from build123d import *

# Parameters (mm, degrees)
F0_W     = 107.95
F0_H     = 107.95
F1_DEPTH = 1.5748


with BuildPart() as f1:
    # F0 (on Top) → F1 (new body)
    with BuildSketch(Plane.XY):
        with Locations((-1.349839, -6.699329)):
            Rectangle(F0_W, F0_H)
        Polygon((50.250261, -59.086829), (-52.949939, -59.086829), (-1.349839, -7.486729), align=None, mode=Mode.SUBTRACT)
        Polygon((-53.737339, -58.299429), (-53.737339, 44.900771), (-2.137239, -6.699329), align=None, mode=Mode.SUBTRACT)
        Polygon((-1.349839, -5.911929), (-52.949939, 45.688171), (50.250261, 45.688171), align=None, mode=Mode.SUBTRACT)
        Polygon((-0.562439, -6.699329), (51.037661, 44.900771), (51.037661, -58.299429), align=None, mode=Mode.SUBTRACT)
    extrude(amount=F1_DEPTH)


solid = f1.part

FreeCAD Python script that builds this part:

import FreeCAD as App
import Part
import Sketcher

V = App.Vector
Q = App.Units.Quantity

doc = App.newDocument("Part")
params = doc.addObject("Spreadsheet::Sheet", "Params")
for row, (alias, value) in enumerate([
    ("sketch1_width", "4.25 in"),
    ("sketch1_width2", "4.063 in"),
    ("pad1_length", "0.062 in"),
], start=1):
    params.set(f"A{row}", alias)
    params.set(f"B{row}", "=" + value)
    params.setAlias(f"B{row}", alias)

body = doc.addObject("PartDesign::Body", "Body")

sketch1 = body.newObject("Sketcher::SketchObject", "Sketch")
sketch1.AttachmentSupport = (doc.getObject("XY_Plane"), [""])
sketch1.MapMode = "FlatFace"
sketch1.addGeometry([
    Part.LineSegment(V(-55.324839, 47.275671, 0), V(-55.324839, -60.674329, 0)),
    Part.LineSegment(V(-55.324839, -60.674329, 0), V(52.625161, -60.674329, 0)),
    Part.LineSegment(V(52.625161, -60.674329, 0), V(52.625161, 47.275671, 0)),
    Part.LineSegment(V(52.625161, 47.275671, 0), V(-55.324839, 47.275671, 0)),
    Part.LineSegment(V(-1.349839, -7.486729, 0), V(50.250261, -59.086829, 0)),
    Part.LineSegment(V(50.250261, -59.086829, 0), V(-52.949939, -59.086829, 0)),
    Part.LineSegment(V(-52.949939, -59.086829, 0), V(-1.349839, -7.486729, 0)),
    Part.LineSegment(V(-2.137239, -6.699329, 0), V(-53.737339, -58.299429, 0)),
    Part.LineSegment(V(-53.737339, -58.299429, 0), V(-53.737339, 44.900771, 0)),
    Part.LineSegment(V(-53.737339, 44.900771, 0), V(-2.137239, -6.699329, 0)),
    Part.LineSegment(V(51.037661, -58.299429, 0), V(-0.562439, -6.699329, 0)),
    Part.LineSegment(V(-0.562439, -6.699329, 0), V(51.037661, 44.900771, 0)),
    Part.LineSegment(V(51.037661, 44.900771, 0), V(51.037661, -58.299429, 0)),
    Part.LineSegment(V(50.250261, 45.688171, 0), V(-1.349839, -5.911929, 0)),
    Part.LineSegment(V(-1.349839, -5.911929, 0), V(-52.949939, 45.688171, 0)),
    Part.LineSegment(V(-52.949939, 45.688171, 0), V(50.250261, 45.688171, 0)),
], False)
sketch1.addConstraint([
    Sketcher.Constraint("Coincident", 0, 2, 1, 1),
    Sketcher.Constraint("Coincident", 1, 2, 2, 1),
    Sketcher.Constraint("Coincident", 2, 2, 3, 1),
    Sketcher.Constraint("Coincident", 3, 2, 0, 1),
    Sketcher.Constraint("Coincident", 4, 2, 5, 1),
    Sketcher.Constraint("Coincident", 5, 2, 6, 1),
    Sketcher.Constraint("Coincident", 6, 2, 4, 1),
    Sketcher.Constraint("Coincident", 7, 2, 8, 1),
    Sketcher.Constraint("Coincident", 8, 2, 9, 1),
    Sketcher.Constraint("Coincident", 9, 2, 7, 1),
    Sketcher.Constraint("Coincident", 10, 2, 11, 1),
    Sketcher.Constraint("Coincident", 11, 2, 12, 1),
    Sketcher.Constraint("Coincident", 12, 2, 10, 1),
    Sketcher.Constraint("Coincident", 13, 2, 14, 1),
    Sketcher.Constraint("Coincident", 14, 2, 15, 1),
    Sketcher.Constraint("Coincident", 15, 2, 13, 1),
    Sketcher.Constraint("Vertical", 0),
    Sketcher.Constraint("Horizontal", 1),
    Sketcher.Constraint("Vertical", 2),
    Sketcher.Constraint("Horizontal", 3),
    Sketcher.Constraint("Horizontal", 5),
    Sketcher.Constraint("Vertical", 8),
    Sketcher.Constraint("Vertical", 12),
    Sketcher.Constraint("Horizontal", 15),
    Sketcher.Constraint("Perpendicular", 4, 6),
    Sketcher.Constraint("Parallel", 6, 7),
    Sketcher.Constraint("Perpendicular", 7, 9),
    Sketcher.Constraint("Parallel", 9, 10),
    Sketcher.Constraint("Perpendicular", 10, 11),
    Sketcher.Constraint("Parallel", 11, 13),
    Sketcher.Constraint("Perpendicular", 13, 14),
    Sketcher.Constraint("Horizontal", 9, 2, 10, 2),
    Sketcher.Constraint("Horizontal", 8, 2, 11, 2),
    Sketcher.Constraint("Horizontal", 7, 2, 12, 2),
    Sketcher.Constraint("Vertical", 6, 2, 13, 2),
    Sketcher.Constraint("Vertical", 5, 2, 14, 2),
    Sketcher.Constraint("Equal", 3, 0),
    Sketcher.Constraint("Equal", 15, 8),
    Sketcher.Constraint("DistanceX", 1, 1, 1, 2, Q("4.25 in")),
    Sketcher.Constraint("DistanceX", 5, 2, 5, 1, Q("4.063 in")),
    Sketcher.Constraint("DistanceY", 1, 2, 4, 2, Q("0.0625 in")),
    Sketcher.Constraint("DistanceX", 0, 2, 6, 2, Q("2.125 in")),
    Sketcher.Constraint("DistanceX", 7, 2, 5, 2, Q("0.031 in")),
    Sketcher.Constraint("DistanceY", 5, 2, 7, 2, Q("0.031 in")),
    Sketcher.Constraint("DistanceX", 6, 2, 10, 2, Q("0.031 in")),
    Sketcher.Constraint("DistanceY", 9, 2, 13, 2, Q("0.031 in")),
    Sketcher.Constraint("DistanceX", 0, 2, -1, 1, 55.324839),
    Sketcher.Constraint("DistanceY", 0, 2, -1, 1, 60.674329),
])
sketch1.setExpression("Constraints[38]", "Params.sketch1_width")
sketch1.setExpression("Constraints[39]", "Params.sketch1_width2")
pad1 = body.newObject("PartDesign::Pad", "Pad")
pad1.Profile = sketch1
pad1.setExpression("Length", "Params.pad1_length")

doc.recompute()
